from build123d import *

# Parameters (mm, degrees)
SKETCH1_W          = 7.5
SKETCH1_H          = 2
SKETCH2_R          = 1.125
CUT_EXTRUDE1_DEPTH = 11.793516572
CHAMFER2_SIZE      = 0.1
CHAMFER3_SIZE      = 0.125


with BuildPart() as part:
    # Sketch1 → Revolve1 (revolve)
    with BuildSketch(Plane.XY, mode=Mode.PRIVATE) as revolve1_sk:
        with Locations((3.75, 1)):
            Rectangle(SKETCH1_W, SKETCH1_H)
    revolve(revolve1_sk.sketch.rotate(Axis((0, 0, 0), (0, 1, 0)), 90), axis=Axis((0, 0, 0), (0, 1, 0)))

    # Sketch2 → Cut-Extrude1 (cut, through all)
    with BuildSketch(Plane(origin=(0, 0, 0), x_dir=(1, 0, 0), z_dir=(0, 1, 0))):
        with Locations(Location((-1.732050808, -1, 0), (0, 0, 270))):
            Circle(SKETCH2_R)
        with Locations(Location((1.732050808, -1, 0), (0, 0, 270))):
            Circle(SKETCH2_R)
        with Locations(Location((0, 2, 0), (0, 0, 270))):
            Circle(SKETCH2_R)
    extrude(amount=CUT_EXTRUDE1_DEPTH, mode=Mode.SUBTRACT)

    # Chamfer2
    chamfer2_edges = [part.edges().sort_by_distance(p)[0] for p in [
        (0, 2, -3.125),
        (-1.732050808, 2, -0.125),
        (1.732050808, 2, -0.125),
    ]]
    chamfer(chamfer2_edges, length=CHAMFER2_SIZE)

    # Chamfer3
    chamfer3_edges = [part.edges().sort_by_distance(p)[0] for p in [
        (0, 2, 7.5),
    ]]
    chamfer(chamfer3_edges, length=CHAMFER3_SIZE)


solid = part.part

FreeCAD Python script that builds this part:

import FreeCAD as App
import Part
import Sketcher
from FreeCAD import Vector


def edges_at(feature, points):
    """Names of the edges that pass closest to the given points."""
    edges = feature.Shape.Edges
    near = lambda p: min(range(len(edges)), key=lambda i: edges[i].distToShape(Part.Vertex(*p))[0])
    return sorted({f"Edge{near(p) + 1}" for p in points})


def add_polygon(sketch, points):
    """Adds a closed chain of lines whose ends are joined by coincident constraints."""
    first, n = sketch.GeometryCount, len(points)
    for a, b in zip(points, points[1:] + points[:1]):
        sketch.addGeometry(Part.LineSegment(App.Vector(*a, 0), App.Vector(*b, 0)), False)
    for i in range(n):
        sketch.addConstraint(Sketcher.Constraint("Coincident", first + i, 2, first + (i + 1) % n, 1))

doc = App.newDocument("Part")
body = doc.addObject("PartDesign::Body", "Body")

# Sketch on XY plane
sketch1 = body.newObject("Sketcher::SketchObject", "Sketch")
sketch1.AttachmentSupport = (doc.getObject("XY_Plane"), [""])
sketch1.MapMode = "FlatFace"
add_polygon(sketch1, [(0, 2), (0, 0), (7.5, 0), (7.5, 2)])  # lines 0-3
sketch1.addConstraint(Sketcher.Constraint("Vertical", 0))
sketch1.addConstraint(Sketcher.Constraint("Horizontal", 1))
sketch1.addConstraint(Sketcher.Constraint("Vertical", 2))
sketch1.addConstraint(Sketcher.Constraint("Horizontal", 3))
sketch1.addConstraint(Sketcher.Constraint("Coincident", 0, 2, -1, 1))
sketch1.addConstraint(Sketcher.Constraint("DistanceY", 0, 2, 0, 1, 2.0))
sketch1.addConstraint(Sketcher.Constraint("DistanceX", 1, 1, 1, 2, 7.5))
revolution = body.newObject("PartDesign::Revolution", "Revolution")
revolution.Profile = sketch1
revolution.ReferenceAxis = (sketch1, ["V_Axis"])
revolution.Angle = 360

# Sketch on XZ plane
sketch2 = body.newObject("Sketcher::SketchObject", "Sketch001")
sketch2.AttachmentSupport = (doc.getObject("XZ_Plane"), [""])
sketch2.MapMode = "FlatFace"
sketch2.addGeometry(Part.Circle(Vector(-1.7, 1, 0), Vector(0, 0, 1), 1.1), False)
sketch2.addGeometry(Part.Circle(Vector(1.7, 1, 0), Vector(0, 0, 1), 1.1), False)
sketch2.addGeometry(Part.Circle(Vector(0, -2, 0), Vector(0, 0, 1), 1.1), False)
sketch2.addConstraint(Sketcher.Constraint("Equal", 0, 1))
sketch2.addConstraint(Sketcher.Constraint("Equal", 1, 2))
sketch2.addConstraint(Sketcher.Constraint("Symmetric", 0, 3, 1, 3, -2))
sketch2.addConstraint(Sketcher.Constraint("PointOnObject", 2, 3, -2))
sketch2.addConstraint(Sketcher.Constraint("Diameter", 0, 2.25))
sketch2.addConstraint(Sketcher.Constraint("DistanceY", -1, 1, 0, 3, 1.0))
sketch2.addConstraint(Sketcher.Constraint("DistanceY", 2, 3, -1, 1, 2.0))
sketch2.addConstraint(Sketcher.Constraint("DistanceX", 0, 3, 1, 3, 3.464102))
pocket1 = body.newObject("PartDesign::Pocket", "Pocket")
pocket1.Profile = sketch2
pocket1.Type = "ThroughAll"
doc.recompute()

chamfer = body.newObject("PartDesign::Chamfer", "Chamfer")
chamfer.Base = (pocket1, edges_at(pocket1, [(0, 2, -3.125), (-1.732, 2, -0.125), (1.732, 2, -0.125)]))
chamfer.Size = 0.1
doc.recompute()

chamfer2 = body.newObject("PartDesign::Chamfer", "Chamfer001")
chamfer2.Base = (chamfer, edges_at(chamfer, [(0, 2, 7.5)]))
chamfer2.Size = 0.125

doc.recompute()
